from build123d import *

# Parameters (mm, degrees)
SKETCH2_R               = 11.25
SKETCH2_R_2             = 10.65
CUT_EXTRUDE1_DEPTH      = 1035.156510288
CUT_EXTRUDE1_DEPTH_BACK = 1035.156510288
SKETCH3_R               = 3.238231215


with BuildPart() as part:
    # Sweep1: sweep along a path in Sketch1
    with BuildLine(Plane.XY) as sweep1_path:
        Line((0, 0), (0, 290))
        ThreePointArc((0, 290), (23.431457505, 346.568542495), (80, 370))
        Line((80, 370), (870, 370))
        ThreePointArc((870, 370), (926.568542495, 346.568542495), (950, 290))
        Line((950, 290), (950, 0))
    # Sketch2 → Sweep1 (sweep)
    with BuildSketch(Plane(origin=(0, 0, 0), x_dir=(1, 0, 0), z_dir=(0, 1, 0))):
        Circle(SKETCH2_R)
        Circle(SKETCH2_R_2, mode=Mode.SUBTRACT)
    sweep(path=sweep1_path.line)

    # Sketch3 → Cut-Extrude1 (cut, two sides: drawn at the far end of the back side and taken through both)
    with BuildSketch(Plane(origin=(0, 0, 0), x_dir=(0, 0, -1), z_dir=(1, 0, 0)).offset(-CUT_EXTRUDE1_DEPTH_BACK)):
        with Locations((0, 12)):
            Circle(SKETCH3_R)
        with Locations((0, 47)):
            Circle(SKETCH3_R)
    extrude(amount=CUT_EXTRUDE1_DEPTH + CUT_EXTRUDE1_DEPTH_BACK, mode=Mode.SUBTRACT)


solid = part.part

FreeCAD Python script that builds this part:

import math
import FreeCAD as App
import Part
import Sketcher

doc = App.newDocument("Part")
params = doc.addObject("Spreadsheet::Sheet", "Params")
for row, (alias, value) in enumerate([
    ("sketch1_diameter", "22.5 mm"),
    ("sketch1_diameter2", "21.3 mm"),
    ("sketch2_radius", "80 mm"),
    ("sketch2_width", "790 mm"),
    ("sketch2_height", "290 mm"),
], start=1):
    params.set(f"A{row}", alias)
    params.set(f"B{row}", "=" + value)
    params.setAlias(f"B{row}", alias)

body = doc.addObject("PartDesign::Body", "Body")

# Sketch on XZ plane
sketch1 = body.newObject("Sketcher::SketchObject", "Sketch")
sketch1.AttachmentSupport = (doc.getObject("XZ_Plane"), [""])
sketch1.MapMode = "FlatFace"
sketch1.addGeometry(Part.Circle(App.Vector(0, 0, 0), App.Vector(0, 0, 1), 11), False)
sketch1.addGeometry(Part.Circle(App.Vector(0, 0, 0), App.Vector(0, 0, 1), 11), False)
sketch1.addConstraint(Sketcher.Constraint("Coincident", 0, 3, -1, 1))
sketch1.addConstraint(Sketcher.Constraint("Coincident", 1, 3, -1, 1))
sketch1.addConstraint(Sketcher.Constraint("Diameter", 0, 22.5))
sketch1.addConstraint(Sketcher.Constraint("Diameter", 1, 21.3))
sketch1.setExpression("Constraints[2]", "Params.sketch1_diameter")
sketch1.setExpression("Constraints[3]", "Params.sketch1_diameter2")

# Sketch on XY plane
sketch2 = body.newObject("Sketcher::SketchObject", "Sketch001")
sketch2.AttachmentSupport = (doc.getObject("XY_Plane"), [""])
sketch2.MapMode = "FlatFace"
sketch2.addGeometry(Part.LineSegment(App.Vector(0, 0, 0), App.Vector(0, 290, 0)), False)
sketch2.addGeometry(Part.ArcOfCircle(Part.Circle(App.Vector(80, 290, 0), App.Vector(0, 0, 1), 80), math.radians(90), math.radians(180)), False)
sketch2.addGeometry(Part.LineSegment(App.Vector(80, 370, 0), App.Vector(870, 370, 0)), False)
sketch2.addGeometry(Part.ArcOfCircle(Part.Circle(App.Vector(870, 290, 0), App.Vector(0, 0, 1), 80), math.radians(0), math.radians(90)), False)
sketch2.addGeometry(Part.LineSegment(App.Vector(950, 290, 0), App.Vector(950, 0, 0)), False)
sketch2.addConstraint(Sketcher.Constraint("Tangent", 0, 2, 1, 2))
sketch2.addConstraint(Sketcher.Constraint("Tangent", 1, 1, 2, 1))
sketch2.addConstraint(Sketcher.Constraint("Tangent", 2, 2, 3, 2))
sketch2.addConstraint(Sketcher.Constraint("Tangent", 3, 1, 4, 1))
sketch2.addConstraint(Sketcher.Constraint("Vertical", 0))
sketch2.addConstraint(Sketcher.Constraint("Horizontal", 2))
sketch2.addConstraint(Sketcher.Constraint("Vertical", 4))
sketch2.addConstraint(Sketcher.Constraint("Coincident", 0, 1, -1, 1))
sketch2.addConstraint(Sketcher.Constraint("Equal", 1, 3))
sketch2.addConstraint(Sketcher.Constraint("PointOnObject", 4, 2, -1))
sketch2.addConstraint(Sketcher.Constraint("Radius", 1, 80.0))
sketch2.addConstraint(Sketcher.Constraint("DistanceX", 2, 1, 2, 2, 790.0))
sketch2.addConstraint(Sketcher.Constraint("DistanceY", 0, 1, 0, 2, 290.0))
sketch2.setExpression("Constraints[10]", "Params.sketch2_radius")
sketch2.setExpression("Constraints[11]", "Params.sketch2_width")
sketch2.setExpression("Constraints[12]", "Params.sketch2_height")
doc.recompute()

additivepipe = body.newObject("PartDesign::AdditivePipe", "AdditivePipe")
additivepipe.Profile = sketch1
additivepipe.Spine = (sketch2, ["Edge1", "Edge2", "Edge3", "Edge4", "Edge5"])

# Sketch on YZ plane
sketch3 = body.newObject("Sketcher::SketchObject", "Sketch002")
sketch3.AttachmentSupport = (doc.getObject("YZ_Plane"), [""])
sketch3.MapMode = "FlatFace"
sketch3.addGeometry(Part.Circle(App.Vector(12, 0, 0), App.Vector(0, 0, 1), 3.2), False)
sketch3.addGeometry(Part.Circle(App.Vector(47, 0, 0), App.Vector(0, 0, 1), 3.2), False)
sketch3.addConstraint(Sketcher.Constraint("Equal", 0, 1))
sketch3.addConstraint(Sketcher.Constraint("PointOnObject", 0, 3, -1))
sketch3.addConstraint(Sketcher.Constraint("PointOnObject", 1, 3, -1))
sketch3.addConstraint(Sketcher.Constraint("DistanceX", -1, 1, 0, 3, 12.0))
sketch3.addConstraint(Sketcher.Constraint("DistanceX", -1, 1, 1, 3, 47.0))
sketch3.addConstraint(Sketcher.Constraint("Diameter", 0, 6.476462))
pocket1 = body.newObject("PartDesign::Pocket", "Pocket")
pocket1.Profile = sketch3
pocket1.Type = "ThroughAll"
pocket1.Midplane = True

doc.recompute()
